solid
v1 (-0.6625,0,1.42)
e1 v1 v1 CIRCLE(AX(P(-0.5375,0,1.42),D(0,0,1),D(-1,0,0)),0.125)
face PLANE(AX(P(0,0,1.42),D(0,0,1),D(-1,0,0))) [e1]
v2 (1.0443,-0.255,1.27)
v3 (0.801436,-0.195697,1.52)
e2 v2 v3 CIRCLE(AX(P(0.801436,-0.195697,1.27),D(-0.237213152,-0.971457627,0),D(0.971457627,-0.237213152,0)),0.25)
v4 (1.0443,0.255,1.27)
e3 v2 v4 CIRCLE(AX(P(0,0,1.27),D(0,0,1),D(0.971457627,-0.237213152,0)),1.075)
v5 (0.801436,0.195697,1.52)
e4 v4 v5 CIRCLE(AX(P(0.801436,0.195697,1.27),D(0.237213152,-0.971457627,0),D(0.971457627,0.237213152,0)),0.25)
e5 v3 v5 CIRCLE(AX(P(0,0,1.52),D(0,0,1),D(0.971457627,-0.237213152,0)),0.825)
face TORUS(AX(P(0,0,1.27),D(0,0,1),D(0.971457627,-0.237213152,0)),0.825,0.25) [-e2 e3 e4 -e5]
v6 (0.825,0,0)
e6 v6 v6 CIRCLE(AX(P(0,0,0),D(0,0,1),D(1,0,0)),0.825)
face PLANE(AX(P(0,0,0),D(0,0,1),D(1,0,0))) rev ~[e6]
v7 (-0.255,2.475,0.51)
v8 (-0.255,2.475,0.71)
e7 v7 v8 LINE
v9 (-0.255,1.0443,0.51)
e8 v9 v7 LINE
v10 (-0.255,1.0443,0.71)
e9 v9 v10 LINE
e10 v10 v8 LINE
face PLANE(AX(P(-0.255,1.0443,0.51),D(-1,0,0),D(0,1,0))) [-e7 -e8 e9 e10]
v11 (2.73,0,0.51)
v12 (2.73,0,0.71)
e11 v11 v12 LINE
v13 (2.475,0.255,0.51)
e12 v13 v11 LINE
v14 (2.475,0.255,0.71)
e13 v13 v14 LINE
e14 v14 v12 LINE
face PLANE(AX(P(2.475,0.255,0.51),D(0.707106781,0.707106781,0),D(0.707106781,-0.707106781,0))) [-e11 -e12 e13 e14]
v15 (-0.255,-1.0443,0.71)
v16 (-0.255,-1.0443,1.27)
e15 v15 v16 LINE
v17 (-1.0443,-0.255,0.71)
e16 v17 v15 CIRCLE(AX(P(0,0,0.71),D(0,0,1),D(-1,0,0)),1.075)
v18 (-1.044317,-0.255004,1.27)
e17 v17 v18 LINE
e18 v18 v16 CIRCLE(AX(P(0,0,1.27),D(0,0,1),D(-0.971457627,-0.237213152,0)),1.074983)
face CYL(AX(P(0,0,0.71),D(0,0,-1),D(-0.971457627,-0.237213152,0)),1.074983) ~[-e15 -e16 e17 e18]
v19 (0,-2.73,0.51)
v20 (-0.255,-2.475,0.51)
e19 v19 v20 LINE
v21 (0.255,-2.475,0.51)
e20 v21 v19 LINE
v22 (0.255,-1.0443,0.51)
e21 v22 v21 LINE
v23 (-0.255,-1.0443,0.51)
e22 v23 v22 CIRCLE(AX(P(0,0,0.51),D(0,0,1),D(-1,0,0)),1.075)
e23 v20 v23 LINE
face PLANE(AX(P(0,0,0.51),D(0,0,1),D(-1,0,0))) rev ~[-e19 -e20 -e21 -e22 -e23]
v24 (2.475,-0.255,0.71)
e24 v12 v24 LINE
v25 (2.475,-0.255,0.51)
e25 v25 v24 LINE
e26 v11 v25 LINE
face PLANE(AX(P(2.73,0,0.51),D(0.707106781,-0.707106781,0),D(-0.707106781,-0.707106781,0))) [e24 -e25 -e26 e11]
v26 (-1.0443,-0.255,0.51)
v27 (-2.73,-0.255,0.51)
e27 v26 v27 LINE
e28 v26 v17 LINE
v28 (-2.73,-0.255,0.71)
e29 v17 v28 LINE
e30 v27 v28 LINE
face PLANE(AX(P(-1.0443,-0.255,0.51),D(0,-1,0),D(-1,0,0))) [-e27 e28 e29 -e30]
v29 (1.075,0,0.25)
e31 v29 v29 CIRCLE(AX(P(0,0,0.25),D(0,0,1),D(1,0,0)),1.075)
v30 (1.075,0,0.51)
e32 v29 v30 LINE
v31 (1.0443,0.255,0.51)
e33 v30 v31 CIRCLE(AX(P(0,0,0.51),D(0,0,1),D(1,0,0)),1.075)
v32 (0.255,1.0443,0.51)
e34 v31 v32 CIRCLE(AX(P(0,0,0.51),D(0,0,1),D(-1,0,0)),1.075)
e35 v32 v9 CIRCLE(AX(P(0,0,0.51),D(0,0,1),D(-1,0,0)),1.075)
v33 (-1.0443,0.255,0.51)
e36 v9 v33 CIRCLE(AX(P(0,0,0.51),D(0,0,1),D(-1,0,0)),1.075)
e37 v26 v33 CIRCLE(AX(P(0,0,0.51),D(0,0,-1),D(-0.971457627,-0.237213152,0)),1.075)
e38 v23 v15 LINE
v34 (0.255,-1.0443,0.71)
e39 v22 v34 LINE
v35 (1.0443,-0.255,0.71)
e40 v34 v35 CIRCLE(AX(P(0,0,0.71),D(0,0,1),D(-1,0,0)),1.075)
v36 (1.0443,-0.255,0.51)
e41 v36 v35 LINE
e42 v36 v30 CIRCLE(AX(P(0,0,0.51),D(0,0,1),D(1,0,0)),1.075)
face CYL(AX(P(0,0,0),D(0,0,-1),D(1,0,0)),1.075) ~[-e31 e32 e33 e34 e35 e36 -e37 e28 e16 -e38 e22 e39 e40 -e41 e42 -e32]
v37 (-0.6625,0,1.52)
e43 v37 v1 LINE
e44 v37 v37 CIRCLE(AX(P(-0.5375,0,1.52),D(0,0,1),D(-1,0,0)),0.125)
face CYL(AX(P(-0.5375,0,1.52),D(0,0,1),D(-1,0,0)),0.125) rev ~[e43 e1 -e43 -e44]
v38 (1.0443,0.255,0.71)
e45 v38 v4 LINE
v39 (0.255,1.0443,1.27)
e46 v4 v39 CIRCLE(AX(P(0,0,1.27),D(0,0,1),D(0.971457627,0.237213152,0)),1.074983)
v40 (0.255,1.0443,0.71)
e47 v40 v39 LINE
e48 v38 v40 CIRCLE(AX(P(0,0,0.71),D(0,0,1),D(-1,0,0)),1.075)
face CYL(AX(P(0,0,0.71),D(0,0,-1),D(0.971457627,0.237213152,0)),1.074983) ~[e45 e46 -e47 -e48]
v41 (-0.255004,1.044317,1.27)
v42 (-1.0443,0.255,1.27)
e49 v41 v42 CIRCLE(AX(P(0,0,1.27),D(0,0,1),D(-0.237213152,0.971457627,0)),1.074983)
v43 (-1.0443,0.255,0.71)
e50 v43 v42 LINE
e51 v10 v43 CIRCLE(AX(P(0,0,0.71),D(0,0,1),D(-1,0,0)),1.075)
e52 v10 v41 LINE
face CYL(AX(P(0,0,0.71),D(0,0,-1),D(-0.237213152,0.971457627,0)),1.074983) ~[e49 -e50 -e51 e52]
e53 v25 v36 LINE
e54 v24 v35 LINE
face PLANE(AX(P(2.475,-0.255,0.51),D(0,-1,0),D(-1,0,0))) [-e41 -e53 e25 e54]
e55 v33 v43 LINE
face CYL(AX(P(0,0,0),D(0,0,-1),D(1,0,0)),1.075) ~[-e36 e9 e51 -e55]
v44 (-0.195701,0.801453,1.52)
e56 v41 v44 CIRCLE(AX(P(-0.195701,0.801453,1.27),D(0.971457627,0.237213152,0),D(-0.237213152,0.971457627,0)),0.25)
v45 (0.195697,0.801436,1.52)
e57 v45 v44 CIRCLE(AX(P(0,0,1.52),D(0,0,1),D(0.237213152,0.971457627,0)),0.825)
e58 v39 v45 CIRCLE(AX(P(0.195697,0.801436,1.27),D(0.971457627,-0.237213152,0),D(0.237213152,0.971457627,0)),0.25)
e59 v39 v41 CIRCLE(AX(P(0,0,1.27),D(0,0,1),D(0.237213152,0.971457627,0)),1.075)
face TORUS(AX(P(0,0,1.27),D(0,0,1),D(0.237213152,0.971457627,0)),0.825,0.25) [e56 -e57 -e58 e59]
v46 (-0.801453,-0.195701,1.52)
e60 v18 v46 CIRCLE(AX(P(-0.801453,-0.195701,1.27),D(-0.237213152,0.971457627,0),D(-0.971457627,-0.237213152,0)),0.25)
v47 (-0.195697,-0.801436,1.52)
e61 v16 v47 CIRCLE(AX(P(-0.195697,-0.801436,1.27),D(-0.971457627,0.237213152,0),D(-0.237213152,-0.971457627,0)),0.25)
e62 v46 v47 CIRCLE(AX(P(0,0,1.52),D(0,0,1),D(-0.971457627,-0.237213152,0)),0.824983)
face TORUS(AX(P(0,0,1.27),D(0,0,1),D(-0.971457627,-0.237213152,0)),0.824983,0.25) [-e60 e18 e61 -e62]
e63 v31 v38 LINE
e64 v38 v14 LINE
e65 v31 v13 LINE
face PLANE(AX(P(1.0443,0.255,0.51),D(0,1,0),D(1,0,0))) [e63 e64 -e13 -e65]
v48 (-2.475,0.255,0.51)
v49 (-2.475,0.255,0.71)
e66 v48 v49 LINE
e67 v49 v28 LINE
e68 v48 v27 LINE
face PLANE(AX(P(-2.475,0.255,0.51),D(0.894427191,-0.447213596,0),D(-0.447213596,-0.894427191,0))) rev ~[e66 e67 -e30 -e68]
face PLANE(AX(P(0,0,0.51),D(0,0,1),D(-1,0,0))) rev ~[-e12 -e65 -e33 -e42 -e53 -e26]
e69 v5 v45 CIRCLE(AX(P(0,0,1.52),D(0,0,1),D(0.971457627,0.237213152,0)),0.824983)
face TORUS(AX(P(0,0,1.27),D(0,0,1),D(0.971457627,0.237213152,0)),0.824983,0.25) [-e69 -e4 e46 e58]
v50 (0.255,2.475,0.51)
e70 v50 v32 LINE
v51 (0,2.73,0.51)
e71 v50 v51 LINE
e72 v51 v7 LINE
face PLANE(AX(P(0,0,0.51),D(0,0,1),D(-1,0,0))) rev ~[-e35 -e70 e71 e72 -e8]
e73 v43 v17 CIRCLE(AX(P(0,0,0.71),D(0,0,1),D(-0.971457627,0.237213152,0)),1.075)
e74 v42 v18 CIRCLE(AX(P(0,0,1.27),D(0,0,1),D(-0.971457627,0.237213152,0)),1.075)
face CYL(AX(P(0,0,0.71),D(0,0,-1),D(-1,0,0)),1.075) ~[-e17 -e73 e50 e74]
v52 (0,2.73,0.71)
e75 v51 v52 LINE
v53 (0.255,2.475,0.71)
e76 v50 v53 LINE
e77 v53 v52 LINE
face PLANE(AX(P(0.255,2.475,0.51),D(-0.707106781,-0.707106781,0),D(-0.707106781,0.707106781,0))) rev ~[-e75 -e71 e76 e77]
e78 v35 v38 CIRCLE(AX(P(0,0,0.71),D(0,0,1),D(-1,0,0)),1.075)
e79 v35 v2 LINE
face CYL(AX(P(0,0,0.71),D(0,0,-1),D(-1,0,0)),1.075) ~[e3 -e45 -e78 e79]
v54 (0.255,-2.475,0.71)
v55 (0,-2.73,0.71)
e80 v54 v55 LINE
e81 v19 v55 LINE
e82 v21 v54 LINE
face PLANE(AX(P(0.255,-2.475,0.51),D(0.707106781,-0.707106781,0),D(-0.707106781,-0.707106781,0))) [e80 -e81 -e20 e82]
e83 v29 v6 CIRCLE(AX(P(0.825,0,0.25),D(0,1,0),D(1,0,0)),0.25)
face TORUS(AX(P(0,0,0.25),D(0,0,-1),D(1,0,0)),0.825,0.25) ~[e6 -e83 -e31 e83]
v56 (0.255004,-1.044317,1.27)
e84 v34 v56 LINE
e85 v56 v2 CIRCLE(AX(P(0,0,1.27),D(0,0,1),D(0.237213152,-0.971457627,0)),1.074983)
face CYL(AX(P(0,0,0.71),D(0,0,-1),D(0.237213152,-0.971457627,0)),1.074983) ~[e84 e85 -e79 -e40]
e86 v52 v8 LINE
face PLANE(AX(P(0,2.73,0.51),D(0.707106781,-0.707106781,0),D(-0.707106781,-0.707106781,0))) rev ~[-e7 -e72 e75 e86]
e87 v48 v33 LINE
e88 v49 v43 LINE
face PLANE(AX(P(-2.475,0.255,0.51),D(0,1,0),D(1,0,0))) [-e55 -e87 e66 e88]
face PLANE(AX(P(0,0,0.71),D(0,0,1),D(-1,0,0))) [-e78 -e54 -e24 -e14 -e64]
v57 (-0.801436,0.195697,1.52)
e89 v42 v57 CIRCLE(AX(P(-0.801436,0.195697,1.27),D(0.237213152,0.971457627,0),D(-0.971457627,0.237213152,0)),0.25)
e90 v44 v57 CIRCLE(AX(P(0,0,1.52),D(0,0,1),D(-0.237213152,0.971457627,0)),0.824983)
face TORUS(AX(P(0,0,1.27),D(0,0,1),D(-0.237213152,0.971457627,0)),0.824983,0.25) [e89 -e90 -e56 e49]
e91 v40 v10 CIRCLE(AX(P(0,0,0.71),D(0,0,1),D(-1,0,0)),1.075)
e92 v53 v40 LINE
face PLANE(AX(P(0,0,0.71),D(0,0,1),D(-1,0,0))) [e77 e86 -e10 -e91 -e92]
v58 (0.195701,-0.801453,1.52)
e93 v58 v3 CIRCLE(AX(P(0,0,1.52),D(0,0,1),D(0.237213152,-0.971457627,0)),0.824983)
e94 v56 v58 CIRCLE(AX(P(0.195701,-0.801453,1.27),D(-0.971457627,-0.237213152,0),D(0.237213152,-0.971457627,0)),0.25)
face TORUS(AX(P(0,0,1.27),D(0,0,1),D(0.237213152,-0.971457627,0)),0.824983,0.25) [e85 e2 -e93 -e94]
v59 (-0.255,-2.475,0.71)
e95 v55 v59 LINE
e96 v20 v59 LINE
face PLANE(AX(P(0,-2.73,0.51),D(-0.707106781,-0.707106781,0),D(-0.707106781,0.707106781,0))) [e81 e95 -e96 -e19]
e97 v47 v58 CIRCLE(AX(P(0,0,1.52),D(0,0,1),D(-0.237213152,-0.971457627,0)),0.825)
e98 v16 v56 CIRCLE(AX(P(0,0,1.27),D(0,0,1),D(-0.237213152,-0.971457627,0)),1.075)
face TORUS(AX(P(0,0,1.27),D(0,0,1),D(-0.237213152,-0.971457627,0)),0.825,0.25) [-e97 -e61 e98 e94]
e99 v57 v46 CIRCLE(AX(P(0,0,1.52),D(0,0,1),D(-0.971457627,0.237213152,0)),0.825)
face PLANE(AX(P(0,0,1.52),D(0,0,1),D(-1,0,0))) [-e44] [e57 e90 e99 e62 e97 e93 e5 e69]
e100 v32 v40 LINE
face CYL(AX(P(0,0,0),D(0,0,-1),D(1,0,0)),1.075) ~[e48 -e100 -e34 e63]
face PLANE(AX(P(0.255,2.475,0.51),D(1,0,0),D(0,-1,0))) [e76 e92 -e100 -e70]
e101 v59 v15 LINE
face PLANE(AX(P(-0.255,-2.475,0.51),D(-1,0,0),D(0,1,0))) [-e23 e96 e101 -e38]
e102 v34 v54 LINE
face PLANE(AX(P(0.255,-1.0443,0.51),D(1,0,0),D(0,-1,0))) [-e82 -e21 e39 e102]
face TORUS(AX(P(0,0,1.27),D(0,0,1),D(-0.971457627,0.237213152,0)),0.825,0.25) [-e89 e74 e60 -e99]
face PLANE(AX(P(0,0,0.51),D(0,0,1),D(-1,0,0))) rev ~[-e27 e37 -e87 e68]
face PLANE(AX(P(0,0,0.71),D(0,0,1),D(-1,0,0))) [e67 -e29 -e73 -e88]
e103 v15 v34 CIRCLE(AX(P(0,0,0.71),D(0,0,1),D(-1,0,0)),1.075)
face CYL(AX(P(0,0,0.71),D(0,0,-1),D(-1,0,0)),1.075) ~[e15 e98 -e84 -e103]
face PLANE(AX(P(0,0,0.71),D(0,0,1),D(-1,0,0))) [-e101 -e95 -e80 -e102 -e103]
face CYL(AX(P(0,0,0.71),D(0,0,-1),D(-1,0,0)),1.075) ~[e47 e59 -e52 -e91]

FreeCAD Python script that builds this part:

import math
import FreeCAD as App
import Part
import Sketcher

V = App.Vector


def edges_at(feature, points):
    """Names of the edges that pass closest to the given points."""
    edges = feature.Shape.Edges
    near = lambda p: min(range(len(edges)), key=lambda i: edges[i].distToShape(Part.Vertex(*p))[0])
    return sorted({f"Edge{near(p) + 1}" for p in points})

doc = App.newDocument("Part")
body = doc.addObject("PartDesign::Body", "Body")

# Sketch on XY plane
sketch1 = body.newObject("Sketcher::SketchObject", "Sketch")
sketch1.AttachmentSupport = (doc.getObject("XY_Plane"), [""])
sketch1.MapMode = "FlatFace"
sketch1.addGeometry(Part.Circle(V(0, 0, 0), V(0, 0, 1), 1.1), False)
sketch1.addConstraint([
    Sketcher.Constraint("Coincident", 0, 3, -1, 1),
    Sketcher.Constraint("Diameter", 0, 2.15),
])
pad1 = body.newObject("PartDesign::Pad", "Pad")
pad1.Profile = sketch1
pad1.Length = 0.51

# Sketch on XY plane
sketch2 = body.newObject("Sketcher::SketchObject", "Sketch001")
sketch2.AttachmentSupport = (doc.getObject("XY_Plane"), [""])
sketch2.MapMode = "FlatFace"
sketch2.AttachmentOffset = App.Placement(V(0, 0, 0.51), App.Rotation())
sketch2.addGeometry([
    Part.ArcOfCircle(Part.Circle(V(0, 0, 0), V(0, 0, 1), 1.07), math.radians(104), math.radians(166)),  # 0
    Part.LineSegment(V(-1.04, 0.26, 0), V(-2.48, 0.26, 0)),  # 1
    Part.LineSegment(V(-2.48, 0.26, 0), V(-2.73, -0.26, 0)),  # 2
    Part.LineSegment(V(-2.73, -0.26, 0), V(-1.04, -0.26, 0)),  # 3
    Part.ArcOfCircle(Part.Circle(V(0, 0, 0), V(0, 0, 1), 1.07), math.radians(-166), math.radians(-104)),  # 4
    Part.LineSegment(V(-0.26, -1.04, 0), V(-0.26, -2.48, 0)),  # 5
    Part.LineSegment(V(-0.26, -2.48, 0), V(0, -2.73, 0)),  # 6
    Part.LineSegment(V(0, -2.73, 0), V(0.26, -2.48, 0)),  # 7
    Part.LineSegment(V(0.26, -2.48, 0), V(0.26, -1.04, 0)),  # 8
    Part.ArcOfCircle(Part.Circle(V(0, 0, 0), V(0, 0, 1), 1.07), math.radians(-76), math.radians(-14)),  # 9
    Part.LineSegment(V(1.04, -0.26, 0), V(2.48, -0.26, 0)),  # 10
    Part.LineSegment(V(2.48, -0.26, 0), V(2.73, 0, 0)),  # 11
    Part.LineSegment(V(2.73, 0, 0), V(2.48, 0.26, 0)),  # 12
    Part.LineSegment(V(2.48, 0.26, 0), V(1.04, 0.26, 0)),  # 13
    Part.ArcOfCircle(Part.Circle(V(0, 0, 0), V(0, 0, 1), 1.07), math.radians(14), math.radians(76)),  # 14
    Part.LineSegment(V(0.26, 1.04, 0), V(0.26, 2.48, 0)),  # 15
    Part.LineSegment(V(0.26, 2.48, 0), V(0, 2.73, 0)),  # 16
    Part.LineSegment(V(0, 2.73, 0), V(-0.26, 2.48, 0)),  # 17
    Part.LineSegment(V(-0.26, 2.48, 0), V(-0.26, 1.04, 0)),  # 18
], False)
sketch2.addConstraint([
    Sketcher.Constraint("Coincident", 0, 2, 1, 1),
    Sketcher.Constraint("Coincident", 1, 2, 2, 1),
    Sketcher.Constraint("Coincident", 2, 2, 3, 1),
    Sketcher.Constraint("Coincident", 3, 2, 4, 1),
    Sketcher.Constraint("Coincident", 4, 2, 5, 1),
    Sketcher.Constraint("Coincident", 5, 2, 6, 1),
    Sketcher.Constraint("Coincident", 6, 2, 7, 1),
    Sketcher.Constraint("Coincident", 7, 2, 8, 1),
    Sketcher.Constraint("Coincident", 8, 2, 9, 1),
    Sketcher.Constraint("Coincident", 9, 2, 10, 1),
    Sketcher.Constraint("Coincident", 10, 2, 11, 1),
    Sketcher.Constraint("Coincident", 11, 2, 12, 1),
    Sketcher.Constraint("Coincident", 12, 2, 13, 1),
    Sketcher.Constraint("Coincident", 13, 2, 14, 1),
    Sketcher.Constraint("Coincident", 14, 2, 15, 1),
    Sketcher.Constraint("Coincident", 15, 2, 16, 1),
    Sketcher.Constraint("Coincident", 16, 2, 17, 1),
    Sketcher.Constraint("Coincident", 17, 2, 18, 1),
    Sketcher.Constraint("Coincident", 18, 2, 0, 1),
    Sketcher.Constraint("Horizontal", 1),
    Sketcher.Constraint("Horizontal", 3),
    Sketcher.Constraint("Vertical", 5),
    Sketcher.Constraint("Vertical", 8),
    Sketcher.Constraint("Horizontal", 10),
    Sketcher.Constraint("Horizontal", 13),
    Sketcher.Constraint("Vertical", 15),
    Sketcher.Constraint("Vertical", 18),
    Sketcher.Constraint("Coincident", 0, 3, -1, 1),
    Sketcher.Constraint("Coincident", 4, 3, -1, 1),
    Sketcher.Constraint("Coincident", 9, 3, -1, 1),
    Sketcher.Constraint("Coincident", 14, 3, -1, 1),
    Sketcher.Constraint("Equal", 0, 4),
    Sketcher.Constraint("Equal", 4, 9),
    Sketcher.Constraint("Equal", 9, 14),
    Sketcher.Constraint("Symmetric", 1, 2, 10, 2, -1, 1),
    Sketcher.Constraint("Symmetric", 5, 2, 15, 2, -1, 1),
    Sketcher.Constraint("Symmetric", 6, 2, 16, 2, -1, 1),
    Sketcher.Constraint("Symmetric", 7, 2, 17, 2, -1, 1),
    Sketcher.Constraint("Symmetric", 5, 2, 7, 2, -2),
    Sketcher.Constraint("Symmetric", 1, 2, 12, 2, -2),
    Sketcher.Constraint("PointOnObject", 6, 2, -2),
    Sketcher.Constraint("PointOnObject", 11, 2, -1),
    Sketcher.Constraint("Perpendicular", 6, 7),
    Sketcher.Constraint("Parallel", 7, 11),
    Sketcher.Constraint("Horizontal", 3, 2, 9, 2),
    Sketcher.Constraint("Equal", 13, 5),
    Sketcher.Constraint("Equal", 7, 11),
    Sketcher.Constraint("DistanceX", 2, 2, -1, 1, 2.73),
    Sketcher.Constraint("DistanceY", 6, 2, -1, 1, 2.73),
    Sketcher.Constraint("DistanceY", 2, 2, 1, 2, 0.51),
    Sketcher.Constraint("Radius", 0, 1.075),
])
pad2 = body.newObject("PartDesign::Pad", "Pad001")
pad2.Profile = sketch2
pad2.Length = 0.2

# Sketch on XY plane
sketch3 = body.newObject("Sketcher::SketchObject", "Sketch002")
sketch3.AttachmentSupport = (doc.getObject("XY_Plane"), [""])
sketch3.MapMode = "FlatFace"
sketch3.AttachmentOffset = App.Placement(V(0, 0, 0.71), App.Rotation())
sketch3.addGeometry(Part.Circle(V(0, 0, 0), V(0, 0, 1), 1.1), False)
sketch3.addConstraint([
    Sketcher.Constraint("Coincident", 0, 3, -1, 1),
    Sketcher.Constraint("Diameter", 0, 2.15),
])
pad3 = body.newObject("PartDesign::Pad", "Pad002")
pad3.Profile = sketch3
pad3.Length = 0.81
doc.recompute()

fillet = body.newObject("PartDesign::Fillet", "Fillet")
fillet.Base = (pad3, edges_at(pad3, [(1.002, 0.389, 1.52)]))
fillet.Radius = 0.25
doc.recompute()

fillet2 = body.newObject("PartDesign::Fillet", "Fillet001")
fillet2.Base = (fillet, edges_at(fillet, [(-1.002, -0.389, 0)]))
fillet2.Radius = 0.25

# Sketch on XY plane
sketch4 = body.newObject("Sketcher::SketchObject", "Sketch003")
sketch4.AttachmentSupport = (doc.getObject("XY_Plane"), [""])
sketch4.MapMode = "FlatFace"
sketch4.AttachmentOffset = App.Placement(V(0, 0, 1.52), App.Rotation())
sketch4.addGeometry(Part.Circle(V(-0.54, 0, 0), V(0, 0, 1), 0.12), False)
sketch4.addConstraint([
    Sketcher.Constraint("PointOnObject", 0, 3, -1),
    Sketcher.Constraint("Diameter", 0, 0.25),
    Sketcher.Constraint("DistanceX", 0, 3, -1, 1, 0.5375),
])
pocket1 = body.newObject("PartDesign::Pocket", "Pocket")
pocket1.Profile = sketch4
pocket1.Length = 0.1

doc.recompute()
